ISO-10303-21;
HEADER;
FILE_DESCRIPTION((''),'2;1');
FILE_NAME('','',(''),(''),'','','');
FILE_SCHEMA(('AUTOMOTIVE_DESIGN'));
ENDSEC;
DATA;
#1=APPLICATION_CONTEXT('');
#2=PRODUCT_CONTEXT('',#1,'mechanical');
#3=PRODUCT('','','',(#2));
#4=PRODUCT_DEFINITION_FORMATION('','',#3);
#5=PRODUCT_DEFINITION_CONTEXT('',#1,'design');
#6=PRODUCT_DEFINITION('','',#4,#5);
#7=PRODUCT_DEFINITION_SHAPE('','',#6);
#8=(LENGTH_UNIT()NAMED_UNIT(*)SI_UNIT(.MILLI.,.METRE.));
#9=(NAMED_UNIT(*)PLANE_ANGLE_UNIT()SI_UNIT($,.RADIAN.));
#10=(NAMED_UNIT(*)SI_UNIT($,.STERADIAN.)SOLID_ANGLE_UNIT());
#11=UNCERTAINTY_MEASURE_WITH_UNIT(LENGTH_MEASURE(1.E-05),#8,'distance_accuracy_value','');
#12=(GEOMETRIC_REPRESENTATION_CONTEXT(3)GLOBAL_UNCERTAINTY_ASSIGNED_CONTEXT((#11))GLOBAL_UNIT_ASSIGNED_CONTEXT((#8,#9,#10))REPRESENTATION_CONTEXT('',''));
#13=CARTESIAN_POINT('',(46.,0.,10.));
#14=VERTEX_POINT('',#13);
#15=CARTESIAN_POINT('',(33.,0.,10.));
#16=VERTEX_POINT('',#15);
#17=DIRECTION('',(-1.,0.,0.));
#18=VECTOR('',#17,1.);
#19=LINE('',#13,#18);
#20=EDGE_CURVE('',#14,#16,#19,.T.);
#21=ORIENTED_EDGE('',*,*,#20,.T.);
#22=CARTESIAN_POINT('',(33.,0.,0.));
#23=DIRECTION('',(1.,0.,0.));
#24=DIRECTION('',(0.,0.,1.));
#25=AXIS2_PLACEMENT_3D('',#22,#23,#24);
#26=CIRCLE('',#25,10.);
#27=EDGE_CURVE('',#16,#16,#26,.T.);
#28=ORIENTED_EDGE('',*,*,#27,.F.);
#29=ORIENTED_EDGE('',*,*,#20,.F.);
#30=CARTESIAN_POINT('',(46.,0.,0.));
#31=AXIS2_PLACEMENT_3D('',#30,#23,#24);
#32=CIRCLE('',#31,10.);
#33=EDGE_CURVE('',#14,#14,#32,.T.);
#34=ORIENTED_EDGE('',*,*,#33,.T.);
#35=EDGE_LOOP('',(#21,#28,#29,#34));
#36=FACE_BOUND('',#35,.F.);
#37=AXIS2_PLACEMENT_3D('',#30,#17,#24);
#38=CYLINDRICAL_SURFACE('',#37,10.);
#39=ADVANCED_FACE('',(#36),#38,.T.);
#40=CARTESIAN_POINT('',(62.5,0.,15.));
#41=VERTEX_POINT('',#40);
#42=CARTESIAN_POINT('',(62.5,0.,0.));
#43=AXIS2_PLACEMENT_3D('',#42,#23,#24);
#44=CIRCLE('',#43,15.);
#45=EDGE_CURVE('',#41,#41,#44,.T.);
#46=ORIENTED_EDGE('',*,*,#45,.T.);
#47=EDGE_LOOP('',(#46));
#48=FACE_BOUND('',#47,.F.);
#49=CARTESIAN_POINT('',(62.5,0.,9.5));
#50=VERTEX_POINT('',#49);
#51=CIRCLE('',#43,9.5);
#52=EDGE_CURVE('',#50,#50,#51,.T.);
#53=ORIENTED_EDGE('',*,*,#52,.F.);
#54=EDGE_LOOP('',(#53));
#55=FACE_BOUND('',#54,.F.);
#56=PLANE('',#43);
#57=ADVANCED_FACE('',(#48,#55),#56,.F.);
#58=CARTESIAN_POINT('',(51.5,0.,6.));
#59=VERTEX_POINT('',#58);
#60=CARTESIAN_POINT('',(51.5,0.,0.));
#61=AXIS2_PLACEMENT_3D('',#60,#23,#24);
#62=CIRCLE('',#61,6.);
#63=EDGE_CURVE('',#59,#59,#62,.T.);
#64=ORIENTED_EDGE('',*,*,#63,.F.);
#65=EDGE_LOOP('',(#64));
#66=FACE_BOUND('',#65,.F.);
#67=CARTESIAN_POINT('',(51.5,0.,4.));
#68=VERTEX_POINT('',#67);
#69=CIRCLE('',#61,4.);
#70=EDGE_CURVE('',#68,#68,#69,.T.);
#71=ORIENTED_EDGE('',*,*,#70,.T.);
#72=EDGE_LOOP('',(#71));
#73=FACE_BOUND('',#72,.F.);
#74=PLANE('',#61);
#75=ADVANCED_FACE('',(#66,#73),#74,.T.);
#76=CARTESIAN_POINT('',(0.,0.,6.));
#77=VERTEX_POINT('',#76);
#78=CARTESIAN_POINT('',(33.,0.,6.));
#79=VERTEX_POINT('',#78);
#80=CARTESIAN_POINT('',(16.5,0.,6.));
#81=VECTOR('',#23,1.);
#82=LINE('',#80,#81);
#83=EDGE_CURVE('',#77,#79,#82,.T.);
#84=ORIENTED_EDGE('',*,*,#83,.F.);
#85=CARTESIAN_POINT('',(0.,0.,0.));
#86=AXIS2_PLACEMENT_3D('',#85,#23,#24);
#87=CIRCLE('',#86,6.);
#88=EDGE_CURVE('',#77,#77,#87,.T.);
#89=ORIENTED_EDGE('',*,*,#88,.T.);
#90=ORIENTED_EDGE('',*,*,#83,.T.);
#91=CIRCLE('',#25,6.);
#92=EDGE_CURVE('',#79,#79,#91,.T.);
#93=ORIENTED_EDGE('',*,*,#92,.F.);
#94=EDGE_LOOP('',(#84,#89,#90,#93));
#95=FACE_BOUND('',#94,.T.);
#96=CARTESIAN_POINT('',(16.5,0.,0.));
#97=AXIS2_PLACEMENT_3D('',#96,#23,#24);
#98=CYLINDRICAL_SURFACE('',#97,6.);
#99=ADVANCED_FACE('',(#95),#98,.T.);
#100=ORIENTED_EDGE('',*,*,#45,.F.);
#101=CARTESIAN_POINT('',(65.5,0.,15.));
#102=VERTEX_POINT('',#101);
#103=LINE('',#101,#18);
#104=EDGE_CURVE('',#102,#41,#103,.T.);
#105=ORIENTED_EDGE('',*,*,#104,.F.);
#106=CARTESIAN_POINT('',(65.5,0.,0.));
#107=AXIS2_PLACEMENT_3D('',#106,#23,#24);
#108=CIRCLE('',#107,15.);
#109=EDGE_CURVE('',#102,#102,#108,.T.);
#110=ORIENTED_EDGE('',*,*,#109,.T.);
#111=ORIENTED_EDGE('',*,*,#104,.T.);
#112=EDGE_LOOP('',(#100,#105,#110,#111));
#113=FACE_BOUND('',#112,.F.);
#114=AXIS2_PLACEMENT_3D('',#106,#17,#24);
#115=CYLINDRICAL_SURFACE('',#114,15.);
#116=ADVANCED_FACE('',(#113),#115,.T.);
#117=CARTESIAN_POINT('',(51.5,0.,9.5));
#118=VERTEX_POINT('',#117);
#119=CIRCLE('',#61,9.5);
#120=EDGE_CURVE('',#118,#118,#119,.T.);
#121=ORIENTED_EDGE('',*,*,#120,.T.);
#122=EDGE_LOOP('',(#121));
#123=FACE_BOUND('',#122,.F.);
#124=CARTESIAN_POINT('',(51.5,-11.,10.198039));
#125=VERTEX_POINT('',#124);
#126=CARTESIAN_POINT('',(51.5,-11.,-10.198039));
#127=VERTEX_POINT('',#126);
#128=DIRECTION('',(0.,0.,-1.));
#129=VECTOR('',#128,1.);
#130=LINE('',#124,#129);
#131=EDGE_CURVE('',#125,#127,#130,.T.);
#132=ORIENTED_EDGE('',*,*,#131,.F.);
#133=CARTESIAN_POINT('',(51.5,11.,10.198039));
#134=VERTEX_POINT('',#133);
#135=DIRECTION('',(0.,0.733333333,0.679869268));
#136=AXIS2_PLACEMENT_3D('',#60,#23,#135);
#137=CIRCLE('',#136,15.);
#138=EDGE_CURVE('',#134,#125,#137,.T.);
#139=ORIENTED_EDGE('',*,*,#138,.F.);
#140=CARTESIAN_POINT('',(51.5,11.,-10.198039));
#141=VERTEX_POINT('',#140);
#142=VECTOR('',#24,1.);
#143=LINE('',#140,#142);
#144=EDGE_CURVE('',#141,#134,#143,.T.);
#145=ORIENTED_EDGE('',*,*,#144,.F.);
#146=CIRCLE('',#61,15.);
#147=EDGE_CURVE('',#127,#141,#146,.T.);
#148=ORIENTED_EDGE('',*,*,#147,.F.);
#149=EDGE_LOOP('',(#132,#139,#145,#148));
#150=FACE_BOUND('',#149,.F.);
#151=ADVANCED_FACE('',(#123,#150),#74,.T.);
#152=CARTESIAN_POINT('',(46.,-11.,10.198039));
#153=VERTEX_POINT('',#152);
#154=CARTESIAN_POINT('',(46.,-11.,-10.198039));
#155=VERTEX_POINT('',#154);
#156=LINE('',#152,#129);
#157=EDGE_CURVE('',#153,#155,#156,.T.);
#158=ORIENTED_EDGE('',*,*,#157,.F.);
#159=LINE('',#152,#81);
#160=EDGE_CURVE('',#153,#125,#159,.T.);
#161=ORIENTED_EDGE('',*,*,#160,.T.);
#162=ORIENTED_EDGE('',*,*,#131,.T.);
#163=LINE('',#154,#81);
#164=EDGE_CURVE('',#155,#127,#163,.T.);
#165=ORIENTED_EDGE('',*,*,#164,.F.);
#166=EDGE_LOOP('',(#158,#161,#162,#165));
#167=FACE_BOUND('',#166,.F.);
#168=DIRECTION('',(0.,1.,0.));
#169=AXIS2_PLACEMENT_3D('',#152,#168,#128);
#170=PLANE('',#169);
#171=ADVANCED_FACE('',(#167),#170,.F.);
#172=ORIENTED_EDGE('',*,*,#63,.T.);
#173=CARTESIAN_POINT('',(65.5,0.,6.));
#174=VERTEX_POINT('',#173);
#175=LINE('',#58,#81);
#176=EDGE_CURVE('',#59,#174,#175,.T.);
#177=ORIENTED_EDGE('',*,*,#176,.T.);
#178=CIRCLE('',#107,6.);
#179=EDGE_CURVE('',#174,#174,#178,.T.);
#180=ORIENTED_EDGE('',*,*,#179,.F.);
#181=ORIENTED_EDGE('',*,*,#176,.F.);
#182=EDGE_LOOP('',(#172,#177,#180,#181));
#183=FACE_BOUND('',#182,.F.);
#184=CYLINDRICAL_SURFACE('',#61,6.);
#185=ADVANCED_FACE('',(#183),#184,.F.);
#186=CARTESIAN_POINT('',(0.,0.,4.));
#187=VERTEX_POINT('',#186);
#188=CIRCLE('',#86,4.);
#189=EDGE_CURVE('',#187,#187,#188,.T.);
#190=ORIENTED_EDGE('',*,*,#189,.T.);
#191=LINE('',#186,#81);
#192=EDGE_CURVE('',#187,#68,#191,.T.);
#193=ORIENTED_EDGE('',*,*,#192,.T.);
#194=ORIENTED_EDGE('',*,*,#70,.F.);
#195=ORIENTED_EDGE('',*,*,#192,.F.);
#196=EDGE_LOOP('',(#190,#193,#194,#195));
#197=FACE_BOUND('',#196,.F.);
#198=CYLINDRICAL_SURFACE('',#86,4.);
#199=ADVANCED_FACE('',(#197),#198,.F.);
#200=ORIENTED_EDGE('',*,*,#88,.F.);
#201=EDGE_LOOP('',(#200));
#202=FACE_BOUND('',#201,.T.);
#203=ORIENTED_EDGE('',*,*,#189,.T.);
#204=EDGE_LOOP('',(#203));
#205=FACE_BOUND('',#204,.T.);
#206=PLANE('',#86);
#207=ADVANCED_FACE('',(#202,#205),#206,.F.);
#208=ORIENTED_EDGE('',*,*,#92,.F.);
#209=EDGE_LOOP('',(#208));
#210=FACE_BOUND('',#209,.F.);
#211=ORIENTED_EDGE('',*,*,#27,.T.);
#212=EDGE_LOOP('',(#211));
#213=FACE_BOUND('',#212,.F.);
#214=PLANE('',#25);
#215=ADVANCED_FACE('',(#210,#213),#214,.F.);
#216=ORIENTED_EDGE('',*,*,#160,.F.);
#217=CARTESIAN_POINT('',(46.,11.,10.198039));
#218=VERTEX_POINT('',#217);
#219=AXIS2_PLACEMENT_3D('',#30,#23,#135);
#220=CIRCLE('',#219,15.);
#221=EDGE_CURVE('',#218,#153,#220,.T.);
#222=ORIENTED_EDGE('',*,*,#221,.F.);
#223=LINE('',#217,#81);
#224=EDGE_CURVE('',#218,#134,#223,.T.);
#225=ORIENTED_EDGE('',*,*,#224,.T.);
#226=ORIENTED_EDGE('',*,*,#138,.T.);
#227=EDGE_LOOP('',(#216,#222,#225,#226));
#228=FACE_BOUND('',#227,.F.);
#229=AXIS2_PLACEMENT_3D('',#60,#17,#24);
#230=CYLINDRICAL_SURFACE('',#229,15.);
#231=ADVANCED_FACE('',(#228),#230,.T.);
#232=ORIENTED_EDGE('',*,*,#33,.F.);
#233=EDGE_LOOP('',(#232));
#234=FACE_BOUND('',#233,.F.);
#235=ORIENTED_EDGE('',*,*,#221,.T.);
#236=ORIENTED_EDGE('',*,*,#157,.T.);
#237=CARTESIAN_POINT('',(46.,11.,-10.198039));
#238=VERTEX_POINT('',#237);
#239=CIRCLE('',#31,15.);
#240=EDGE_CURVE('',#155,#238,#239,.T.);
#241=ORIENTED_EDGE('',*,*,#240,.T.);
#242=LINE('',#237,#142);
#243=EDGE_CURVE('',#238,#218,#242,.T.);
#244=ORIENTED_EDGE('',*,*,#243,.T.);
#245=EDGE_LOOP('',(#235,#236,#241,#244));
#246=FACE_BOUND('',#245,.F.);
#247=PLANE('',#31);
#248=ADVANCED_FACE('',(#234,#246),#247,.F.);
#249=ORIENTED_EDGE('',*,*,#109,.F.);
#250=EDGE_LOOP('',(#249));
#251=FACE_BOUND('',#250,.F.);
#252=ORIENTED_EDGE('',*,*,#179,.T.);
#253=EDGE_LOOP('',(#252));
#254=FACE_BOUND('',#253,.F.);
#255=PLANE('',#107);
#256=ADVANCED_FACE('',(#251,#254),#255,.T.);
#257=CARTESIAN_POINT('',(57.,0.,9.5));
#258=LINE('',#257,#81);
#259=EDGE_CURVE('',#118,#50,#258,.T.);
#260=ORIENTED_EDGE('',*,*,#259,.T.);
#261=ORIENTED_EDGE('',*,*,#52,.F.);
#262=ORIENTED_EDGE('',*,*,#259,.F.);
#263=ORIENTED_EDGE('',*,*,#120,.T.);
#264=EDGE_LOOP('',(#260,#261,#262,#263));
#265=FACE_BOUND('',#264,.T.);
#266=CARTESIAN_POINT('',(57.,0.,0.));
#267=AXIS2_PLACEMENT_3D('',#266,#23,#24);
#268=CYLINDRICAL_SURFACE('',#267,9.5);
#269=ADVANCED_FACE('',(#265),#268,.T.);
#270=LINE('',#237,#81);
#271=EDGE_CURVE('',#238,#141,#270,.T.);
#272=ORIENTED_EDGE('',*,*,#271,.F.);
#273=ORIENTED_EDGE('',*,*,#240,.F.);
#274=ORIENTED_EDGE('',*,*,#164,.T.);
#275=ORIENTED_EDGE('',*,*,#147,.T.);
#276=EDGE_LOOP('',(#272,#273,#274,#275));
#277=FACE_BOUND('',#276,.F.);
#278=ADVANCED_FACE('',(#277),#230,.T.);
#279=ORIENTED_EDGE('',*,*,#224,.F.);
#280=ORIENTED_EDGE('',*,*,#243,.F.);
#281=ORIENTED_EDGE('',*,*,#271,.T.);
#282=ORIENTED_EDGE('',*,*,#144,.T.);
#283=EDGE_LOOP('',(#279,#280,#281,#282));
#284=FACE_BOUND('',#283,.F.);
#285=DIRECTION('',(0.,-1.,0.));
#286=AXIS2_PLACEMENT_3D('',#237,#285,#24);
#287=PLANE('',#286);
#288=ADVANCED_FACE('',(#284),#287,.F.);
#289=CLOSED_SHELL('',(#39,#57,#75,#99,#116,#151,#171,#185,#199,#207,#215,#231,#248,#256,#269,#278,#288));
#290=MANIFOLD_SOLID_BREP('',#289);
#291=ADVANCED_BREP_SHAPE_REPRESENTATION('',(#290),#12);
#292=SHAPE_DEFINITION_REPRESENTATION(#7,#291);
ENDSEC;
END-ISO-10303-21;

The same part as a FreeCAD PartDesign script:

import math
import FreeCAD as App
import Part
import Sketcher
Q = App.Units.Quantity

doc = App.newDocument("Part")
body = doc.addObject("PartDesign::Body", "Body")

# Sketch on XZ plane
sketch1 = body.newObject("Sketcher::SketchObject", "Sketch")
sketch1.AttachmentSupport = (doc.getObject("XZ_Plane"), [""])
sketch1.MapMode = "FlatFace"
sketch1.addGeometry(Part.LineSegment(App.Vector(65.5, 6, 0), App.Vector(65.5, 15, 0)), False)
sketch1.addGeometry(Part.LineSegment(App.Vector(65.5, 15, 0), App.Vector(62.5, 15, 0)), False)
sketch1.addGeometry(Part.LineSegment(App.Vector(62.5, 15, 0), App.Vector(62.5, 9.5, 0)), False)
sketch1.addGeometry(Part.LineSegment(App.Vector(62.5, 9.5, 0), App.Vector(51.5, 9.5, 0)), False)
sketch1.addGeometry(Part.LineSegment(App.Vector(51.5, 9.5, 0), App.Vector(51.5, 15, 0)), False)
sketch1.addGeometry(Part.LineSegment(App.Vector(51.5, 15, 0), App.Vector(46, 15, 0)), False)
sketch1.addGeometry(Part.LineSegment(App.Vector(46, 15, 0), App.Vector(46, 10, 0)), False)
sketch1.addGeometry(Part.LineSegment(App.Vector(46, 10, 0), App.Vector(33, 10, 0)), False)
sketch1.addGeometry(Part.LineSegment(App.Vector(33, 10, 0), App.Vector(33, 6, 0)), False)
sketch1.addGeometry(Part.LineSegment(App.Vector(33, 6, 0), App.Vector(0, 6, 0)), False)
sketch1.addGeometry(Part.LineSegment(App.Vector(0, 6, 0), App.Vector(0, 4, 0)), False)
sketch1.addGeometry(Part.LineSegment(App.Vector(0, 4, 0), App.Vector(51.5, 4, 0)), False)
sketch1.addGeometry(Part.LineSegment(App.Vector(51.5, 4, 0), App.Vector(51.5, 6, 0)), False)
sketch1.addGeometry(Part.LineSegment(App.Vector(51.5, 6, 0), App.Vector(65.5, 6, 0)), False)
sketch1.addConstraint(Sketcher.Constraint("Coincident", 0, 2, 1, 1))
sketch1.addConstraint(Sketcher.Constraint("Coincident", 1, 2, 2, 1))
sketch1.addConstraint(Sketcher.Constraint("Coincident", 2, 2, 3, 1))
sketch1.addConstraint(Sketcher.Constraint("Coincident", 3, 2, 4, 1))
sketch1.addConstraint(Sketcher.Constraint("Coincident", 4, 2, 5, 1))
sketch1.addConstraint(Sketcher.Constraint("Coincident", 5, 2, 6, 1))
sketch1.addConstraint(Sketcher.Constraint("Coincident", 6, 2, 7, 1))
sketch1.addConstraint(Sketcher.Constraint("Coincident", 7, 2, 8, 1))
sketch1.addConstraint(Sketcher.Constraint("Coincident", 8, 2, 9, 1))
sketch1.addConstraint(Sketcher.Constraint("Coincident", 9, 2, 10, 1))
sketch1.addConstraint(Sketcher.Constraint("Coincident", 10, 2, 11, 1))
sketch1.addConstraint(Sketcher.Constraint("Coincident", 11, 2, 12, 1))
sketch1.addConstraint(Sketcher.Constraint("Coincident", 12, 2, 13, 1))
sketch1.addConstraint(Sketcher.Constraint("Coincident", 13, 2, 0, 1))
sketch1.addConstraint(Sketcher.Constraint("Vertical", 0))
sketch1.addConstraint(Sketcher.Constraint("Horizontal", 1))
sketch1.addConstraint(Sketcher.Constraint("Vertical", 2))
sketch1.addConstraint(Sketcher.Constraint("Horizontal", 3))
sketch1.addConstraint(Sketcher.Constraint("Vertical", 4))
sketch1.addConstraint(Sketcher.Constraint("Horizontal", 5))
sketch1.addConstraint(Sketcher.Constraint("Vertical", 6))
sketch1.addConstraint(Sketcher.Constraint("Horizontal", 7))
sketch1.addConstraint(Sketcher.Constraint("Vertical", 8))
sketch1.addConstraint(Sketcher.Constraint("Horizontal", 9))
sketch1.addConstraint(Sketcher.Constraint("Vertical", 10))
sketch1.addConstraint(Sketcher.Constraint("Horizontal", 11))
sketch1.addConstraint(Sketcher.Constraint("Vertical", 12))
sketch1.addConstraint(Sketcher.Constraint("Horizontal", 13))
sketch1.addConstraint(Sketcher.Constraint("PointOnObject", 9, 2, -2))
sketch1.addConstraint(Sketcher.Constraint("Horizontal", 1, 2, 4, 2))
sketch1.addConstraint(Sketcher.Constraint("Horizontal", 9, 2, 12, 2))
sketch1.addConstraint(Sketcher.Constraint("Vertical", 4, 2, 11, 2))
sketch1.addConstraint(Sketcher.Constraint("Equal", 5, 2))
sketch1.addConstraint(Sketcher.Constraint("DistanceX", 1, 2, 1, 1, Q("3 mm")))
sketch1.addConstraint(Sketcher.Constraint("DistanceX", 3, 2, 3, 1, Q("11 mm")))
sketch1.addConstraint(Sketcher.Constraint("DistanceX", 7, 2, 7, 1, Q("13 mm")))
sketch1.addConstraint(Sketcher.Constraint("DistanceX", 9, 2, 9, 1, Q("33 mm")))
sketch1.addConstraint(Sketcher.Constraint("DistanceY", 0, 1, 0, 2, Q("9 mm")))
sketch1.addConstraint(Sketcher.Constraint("DistanceY", 6, 2, 6, 1, Q("5 mm")))
sketch1.addConstraint(Sketcher.Constraint("DistanceY", 10, 2, 10, 1, Q("2 mm")))
sketch1.addConstraint(Sketcher.Constraint("DistanceX", 5, 2, 5, 1, Q("5.5 mm")))
sketch1.addConstraint(Sketcher.Constraint("DistanceY", -1, 1, 0, 2, Q("15 mm")))
revolution = body.newObject("PartDesign::Revolution", "Revolution")
revolution.Profile = sketch1
revolution.ReferenceAxis = (sketch1, ["H_Axis"])
revolution.Angle = 360

# Sketch on YZ plane
sketch2 = body.newObject("Sketcher::SketchObject", "Sketch001")
sketch2.AttachmentSupport = (doc.getObject("YZ_Plane"), [""])
sketch2.MapMode = "FlatFace"
sketch2.AttachmentOffset = App.Placement(App.Vector(0, 0, 46), App.Rotation())
sketch2.addGeometry(Part.LineSegment(App.Vector(11, -10.198039, 0), App.Vector(11, 10.198039, 0)), False)
sketch2.addGeometry(Part.ArcOfCircle(Part.Circle(App.Vector(0, 0, 0), App.Vector(0, 0, 1), 15), math.radians(-42.833428), math.radians(42.833428)), False)
sketch2.addGeometry(Part.LineSegment(App.Vector(-11, 10.198039, 0), App.Vector(-11, -10.198039, 0)), False)
sketch2.addGeometry(Part.ArcOfCircle(Part.Circle(App.Vector(0, 0, 0), App.Vector(0, 0, 1), 15), math.radians(180), math.radians(222.833428)), False)
sketch2.addGeometry(Part.ArcOfCircle(Part.Circle(App.Vector(0, 0, 0), App.Vector(0, 0, 1), 15), math.radians(137.166572), math.radians(180)), False)
sketch2.addConstraint(Sketcher.Constraint("Coincident", 0, 1, 1, 1))
sketch2.addConstraint(Sketcher.Constraint("Coincident", 1, 2, 0, 2))
sketch2.addConstraint(Sketcher.Constraint("Coincident", 2, 2, 3, 2))
sketch2.addConstraint(Sketcher.Constraint("Tangent", 3, 1, 4, 2))
sketch2.addConstraint(Sketcher.Constraint("Coincident", 4, 1, 2, 1))
sketch2.addConstraint(Sketcher.Constraint("Vertical", 0))
sketch2.addConstraint(Sketcher.Constraint("Vertical", 2))
sketch2.addConstraint(Sketcher.Constraint("Coincident", 1, 3, -1, 1))
sketch2.addConstraint(Sketcher.Constraint("Coincident", 3, 3, -1, 1))
sketch2.addConstraint(Sketcher.Constraint("Equal", 1, 3))
sketch2.addConstraint(Sketcher.Constraint("Equal", 3, 4))
sketch2.addConstraint(Sketcher.Constraint("PointOnObject", 3, 1, -1))
sketch2.addConstraint(Sketcher.Constraint("Horizontal", 0, 1, 2, 2))
sketch2.addConstraint(Sketcher.Constraint("Radius", 1, Q("15 mm")))
sketch2.addConstraint(Sketcher.Constraint("DistanceX", -1, 1, 0, 1, Q("11 mm")))
pocket1 = body.newObject("PartDesign::Pocket", "Pocket")
pocket1.Profile = sketch2
pocket1.Length = 5.5
pocket1.Reversed = True

doc.recompute()
